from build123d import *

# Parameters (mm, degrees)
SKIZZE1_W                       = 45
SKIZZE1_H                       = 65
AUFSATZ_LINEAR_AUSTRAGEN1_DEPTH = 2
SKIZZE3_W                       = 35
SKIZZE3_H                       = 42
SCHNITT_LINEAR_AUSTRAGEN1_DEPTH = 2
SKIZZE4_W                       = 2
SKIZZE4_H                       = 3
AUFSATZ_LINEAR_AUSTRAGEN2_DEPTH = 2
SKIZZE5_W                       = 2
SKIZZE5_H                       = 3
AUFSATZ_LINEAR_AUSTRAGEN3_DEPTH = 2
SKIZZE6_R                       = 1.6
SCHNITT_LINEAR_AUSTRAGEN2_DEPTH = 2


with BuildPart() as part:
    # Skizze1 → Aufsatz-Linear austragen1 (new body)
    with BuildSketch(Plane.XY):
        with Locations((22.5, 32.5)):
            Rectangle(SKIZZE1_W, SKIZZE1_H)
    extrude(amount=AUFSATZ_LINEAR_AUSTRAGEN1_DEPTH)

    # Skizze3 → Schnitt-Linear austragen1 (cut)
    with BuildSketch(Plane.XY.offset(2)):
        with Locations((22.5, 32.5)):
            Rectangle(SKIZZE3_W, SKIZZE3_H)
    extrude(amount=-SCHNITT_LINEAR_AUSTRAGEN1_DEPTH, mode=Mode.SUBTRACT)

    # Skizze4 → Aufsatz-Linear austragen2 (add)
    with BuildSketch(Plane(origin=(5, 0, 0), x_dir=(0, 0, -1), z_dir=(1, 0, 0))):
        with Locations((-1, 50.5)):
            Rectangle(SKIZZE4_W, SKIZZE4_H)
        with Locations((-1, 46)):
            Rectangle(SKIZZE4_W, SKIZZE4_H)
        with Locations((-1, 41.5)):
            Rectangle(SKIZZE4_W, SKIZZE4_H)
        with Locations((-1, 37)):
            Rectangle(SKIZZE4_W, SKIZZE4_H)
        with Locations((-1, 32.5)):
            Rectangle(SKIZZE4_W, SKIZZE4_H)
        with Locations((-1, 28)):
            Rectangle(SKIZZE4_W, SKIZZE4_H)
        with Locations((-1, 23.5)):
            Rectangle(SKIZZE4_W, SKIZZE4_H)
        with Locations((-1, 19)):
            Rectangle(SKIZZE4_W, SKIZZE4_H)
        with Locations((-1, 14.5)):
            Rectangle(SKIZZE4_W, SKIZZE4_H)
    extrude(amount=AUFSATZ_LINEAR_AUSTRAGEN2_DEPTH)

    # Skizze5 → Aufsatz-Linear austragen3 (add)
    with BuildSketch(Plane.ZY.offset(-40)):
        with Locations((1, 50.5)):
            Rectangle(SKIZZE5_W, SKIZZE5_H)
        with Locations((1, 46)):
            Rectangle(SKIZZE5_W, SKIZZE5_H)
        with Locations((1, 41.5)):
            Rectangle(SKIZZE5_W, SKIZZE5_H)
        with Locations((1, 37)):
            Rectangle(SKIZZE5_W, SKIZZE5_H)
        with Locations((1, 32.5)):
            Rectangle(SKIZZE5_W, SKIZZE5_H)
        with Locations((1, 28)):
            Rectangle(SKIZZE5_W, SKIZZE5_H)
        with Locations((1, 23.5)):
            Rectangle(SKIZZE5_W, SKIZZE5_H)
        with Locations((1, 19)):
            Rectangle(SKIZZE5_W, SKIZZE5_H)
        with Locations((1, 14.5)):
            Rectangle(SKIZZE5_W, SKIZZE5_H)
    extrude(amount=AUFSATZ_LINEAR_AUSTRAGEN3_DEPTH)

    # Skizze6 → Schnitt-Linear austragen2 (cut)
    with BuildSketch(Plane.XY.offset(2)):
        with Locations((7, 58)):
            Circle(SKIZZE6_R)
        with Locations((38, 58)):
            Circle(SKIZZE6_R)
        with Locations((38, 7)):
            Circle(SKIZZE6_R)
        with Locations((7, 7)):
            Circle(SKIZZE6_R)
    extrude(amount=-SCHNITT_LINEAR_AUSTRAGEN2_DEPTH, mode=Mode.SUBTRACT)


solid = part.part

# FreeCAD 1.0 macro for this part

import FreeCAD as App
import Part
import Sketcher

doc = App.newDocument("Part")
params = doc.addObject("Spreadsheet::Sheet", "Params")
for row, (alias, value) in enumerate([
    ("sketch1_width", "45 mm"),
    ("sketch1_height", "65 mm"),
    ("pad1_length", "2 mm"),
    ("sketch2_width", "35 mm"),
    ("sketch2_height", "42 mm"),
    ("pocket1_length", "2 mm"),
    ("sketch3_width", "3 mm"),
    ("sketch3_height", "2 mm"),
    ("pad2_length", "2 mm"),
    ("sketch4_width", "3 mm"),
    ("sketch4_height", "2 mm"),
    ("pad3_length", "2 mm"),
    ("sketch5_diameter", "3.2 mm"),
    ("pocket2_length", "2 mm"),
], start=1):
    params.set(f"A{row}", alias)
    params.set(f"B{row}", "=" + value)
    params.setAlias(f"B{row}", alias)

body = doc.addObject("PartDesign::Body", "Body")

# Sketch on XY plane
sketch1 = body.newObject("Sketcher::SketchObject", "Sketch")
sketch1.AttachmentSupport = (doc.getObject("XY_Plane"), [""])
sketch1.MapMode = "FlatFace"
sketch1.addGeometry([
    Part.LineSegment(App.Vector(0, 65, 0), App.Vector(0, 0, 0)),
    Part.LineSegment(App.Vector(0, 0, 0), App.Vector(45, 0, 0)),
    Part.LineSegment(App.Vector(45, 0, 0), App.Vector(45, 65, 0)),
    Part.LineSegment(App.Vector(45, 65, 0), App.Vector(0, 65, 0)),
], False)
sketch1.addConstraint([
    Sketcher.Constraint("Coincident", 0, 2, 1, 1),
    Sketcher.Constraint("Coincident", 1, 2, 2, 1),
    Sketcher.Constraint("Coincident", 2, 2, 3, 1),
    Sketcher.Constraint("Coincident", 3, 2, 0, 1),
    Sketcher.Constraint("Vertical", 0),
    Sketcher.Constraint("Horizontal", 1),
    Sketcher.Constraint("Vertical", 2),
    Sketcher.Constraint("Horizontal", 3),
    Sketcher.Constraint("Coincident", 0, 2, -1, 1),
    Sketcher.Constraint("DistanceX", 1, 1, 1, 2, 45.0),
    Sketcher.Constraint("DistanceY", 0, 2, 0, 1, 65.0),
])
sketch1.setExpression("Constraints[9]", "Params.sketch1_width")
sketch1.setExpression("Constraints[10]", "Params.sketch1_height")
pad1 = body.newObject("PartDesign::Pad", "Pad")
pad1.Profile = sketch1
pad1.setExpression("Length", "Params.pad1_length")

# Sketch on XY plane
sketch2 = body.newObject("Sketcher::SketchObject", "Sketch001")
sketch2.AttachmentSupport = (doc.getObject("XY_Plane"), [""])
sketch2.MapMode = "FlatFace"
sketch2.AttachmentOffset = App.Placement(App.Vector(0, 0, 2), App.Rotation())
sketch2.addGeometry([
    Part.LineSegment(App.Vector(5, 54, 0), App.Vector(5, 12, 0)),
    Part.LineSegment(App.Vector(5, 12, 0), App.Vector(40, 12, 0)),
    Part.LineSegment(App.Vector(40, 12, 0), App.Vector(40, 54, 0)),
    Part.LineSegment(App.Vector(40, 54, 0), App.Vector(5, 54, 0)),
], False)
sketch2.addConstraint([
    Sketcher.Constraint("Coincident", 0, 2, 1, 1),
    Sketcher.Constraint("Coincident", 1, 2, 2, 1),
    Sketcher.Constraint("Coincident", 2, 2, 3, 1),
    Sketcher.Constraint("Coincident", 3, 2, 0, 1),
    Sketcher.Constraint("Vertical", 0),
    Sketcher.Constraint("Horizontal", 1),
    Sketcher.Constraint("Vertical", 2),
    Sketcher.Constraint("Horizontal", 3),
    Sketcher.Constraint("DistanceX", 1, 1, 1, 2, 35.0),
    Sketcher.Constraint("DistanceY", 0, 2, 0, 1, 42.0),
    Sketcher.Constraint("DistanceX", -1, 1, 0, 2, 5.0),
    Sketcher.Constraint("DistanceY", -1, 1, 0, 2, 11.5),
])
sketch2.setExpression("Constraints[8]", "Params.sketch2_width")
sketch2.setExpression("Constraints[9]", "Params.sketch2_height")
pocket1 = body.newObject("PartDesign::Pocket", "Pocket")
pocket1.Profile = sketch2
pocket1.setExpression("Length", "Params.pocket1_length")

# Sketch on YZ plane
sketch3 = body.newObject("Sketcher::SketchObject", "Sketch002")
sketch3.AttachmentSupport = (doc.getObject("YZ_Plane"), [""])
sketch3.MapMode = "FlatFace"
sketch3.AttachmentOffset = App.Placement(App.Vector(0, 0, 5), App.Rotation())
sketch3.addGeometry([
    Part.LineSegment(App.Vector(52, 2, 0), App.Vector(49, 2, 0)),  # 0
    Part.LineSegment(App.Vector(49, 2, 0), App.Vector(49, 0, 0)),  # 1
    Part.LineSegment(App.Vector(49, 0, 0), App.Vector(52, 0, 0)),  # 2
    Part.LineSegment(App.Vector(52, 0, 0), App.Vector(52, 2, 0)),  # 3
    Part.LineSegment(App.Vector(47.5, 2, 0), App.Vector(44.5, 2, 0)),  # 4
    Part.LineSegment(App.Vector(44.5, 2, 0), App.Vector(44.5, 0, 0)),  # 5
    Part.LineSegment(App.Vector(44.5, 0, 0), App.Vector(47.5, 0, 0)),  # 6
    Part.LineSegment(App.Vector(47.5, 0, 0), App.Vector(47.5, 2, 0)),  # 7
    Part.LineSegment(App.Vector(43, 2, 0), App.Vector(40, 2, 0)),  # 8
    Part.LineSegment(App.Vector(40, 2, 0), App.Vector(40, 0, 0)),  # 9
    Part.LineSegment(App.Vector(40, 0, 0), App.Vector(43, 0, 0)),  # 10
    Part.LineSegment(App.Vector(43, 0, 0), App.Vector(43, 2, 0)),  # 11
    Part.LineSegment(App.Vector(38.5, 2, 0), App.Vector(35.5, 2, 0)),  # 12
    Part.LineSegment(App.Vector(35.5, 2, 0), App.Vector(35.5, 0, 0)),  # 13
    Part.LineSegment(App.Vector(35.5, 0, 0), App.Vector(38.5, 0, 0)),  # 14
    Part.LineSegment(App.Vector(38.5, 0, 0), App.Vector(38.5, 2, 0)),  # 15
    Part.LineSegment(App.Vector(34, 2, 0), App.Vector(31, 2, 0)),  # 16
    Part.LineSegment(App.Vector(31, 2, 0), App.Vector(31, 0, 0)),  # 17
    Part.LineSegment(App.Vector(31, 0, 0), App.Vector(34, 0, 0)),  # 18
    Part.LineSegment(App.Vector(34, 0, 0), App.Vector(34, 2, 0)),  # 19
    Part.LineSegment(App.Vector(29.5, 2, 0), App.Vector(26.5, 2, 0)),  # 20
    Part.LineSegment(App.Vector(26.5, 2, 0), App.Vector(26.5, 0, 0)),  # 21
    Part.LineSegment(App.Vector(26.5, 0, 0), App.Vector(29.5, 0, 0)),  # 22
    Part.LineSegment(App.Vector(29.5, 0, 0), App.Vector(29.5, 2, 0)),  # 23
    Part.LineSegment(App.Vector(25, 2, 0), App.Vector(22, 2, 0)),  # 24
    Part.LineSegment(App.Vector(22, 2, 0), App.Vector(22, 0, 0)),  # 25
    Part.LineSegment(App.Vector(22, 0, 0), App.Vector(25, 0, 0)),  # 26
    Part.LineSegment(App.Vector(25, 0, 0), App.Vector(25, 2, 0)),  # 27
    Part.LineSegment(App.Vector(20.5, 2, 0), App.Vector(17.5, 2, 0)),  # 28
    Part.LineSegment(App.Vector(17.5, 2, 0), App.Vector(17.5, 0, 0)),  # 29
    Part.LineSegment(App.Vector(17.5, 0, 0), App.Vector(20.5, 0, 0)),  # 30
    Part.LineSegment(App.Vector(20.5, 0, 0), App.Vector(20.5, 2, 0)),  # 31
    Part.LineSegment(App.Vector(16, 2, 0), App.Vector(13, 2, 0)),  # 32
    Part.LineSegment(App.Vector(13, 2, 0), App.Vector(13, 0, 0)),  # 33
    Part.LineSegment(App.Vector(13, 0, 0), App.Vector(16, 0, 0)),  # 34
    Part.LineSegment(App.Vector(16, 0, 0), App.Vector(16, 2, 0)),  # 35
], False)
sketch3.addConstraint([
    Sketcher.Constraint("Coincident", 0, 2, 1, 1),
    Sketcher.Constraint("Coincident", 1, 2, 2, 1),
    Sketcher.Constraint("Coincident", 2, 2, 3, 1),
    Sketcher.Constraint("Coincident", 3, 2, 0, 1),
    Sketcher.Constraint("Coincident", 4, 2, 5, 1),
    Sketcher.Constraint("Coincident", 5, 2, 6, 1),
    Sketcher.Constraint("Coincident", 6, 2, 7, 1),
    Sketcher.Constraint("Coincident", 7, 2, 4, 1),
    Sketcher.Constraint("Coincident", 8, 2, 9, 1),
    Sketcher.Constraint("Coincident", 9, 2, 10, 1),
    Sketcher.Constraint("Coincident", 10, 2, 11, 1),
    Sketcher.Constraint("Coincident", 11, 2, 8, 1),
    Sketcher.Constraint("Coincident", 12, 2, 13, 1),
    Sketcher.Constraint("Coincident", 13, 2, 14, 1),
    Sketcher.Constraint("Coincident", 14, 2, 15, 1),
    Sketcher.Constraint("Coincident", 15, 2, 12, 1),
    Sketcher.Constraint("Coincident", 16, 2, 17, 1),
    Sketcher.Constraint("Coincident", 17, 2, 18, 1),
    Sketcher.Constraint("Coincident", 18, 2, 19, 1),
    Sketcher.Constraint("Coincident", 19, 2, 16, 1),
    Sketcher.Constraint("Coincident", 20, 2, 21, 1),
    Sketcher.Constraint("Coincident", 21, 2, 22, 1),
    Sketcher.Constraint("Coincident", 22, 2, 23, 1),
    Sketcher.Constraint("Coincident", 23, 2, 20, 1),
    Sketcher.Constraint("Coincident", 24, 2, 25, 1),
    Sketcher.Constraint("Coincident", 25, 2, 26, 1),
    Sketcher.Constraint("Coincident", 26, 2, 27, 1),
    Sketcher.Constraint("Coincident", 27, 2, 24, 1),
    Sketcher.Constraint("Coincident", 28, 2, 29, 1),
    Sketcher.Constraint("Coincident", 29, 2, 30, 1),
    Sketcher.Constraint("Coincident", 30, 2, 31, 1),
    Sketcher.Constraint("Coincident", 31, 2, 28, 1),
    Sketcher.Constraint("Coincident", 32, 2, 33, 1),
    Sketcher.Constraint("Coincident", 33, 2, 34, 1),
    Sketcher.Constraint("Coincident", 34, 2, 35, 1),
    Sketcher.Constraint("Coincident", 35, 2, 32, 1),
    Sketcher.Constraint("Horizontal", 0),
    Sketcher.Constraint("Vertical", 1),
    Sketcher.Constraint("Horizontal", 2),
    Sketcher.Constraint("Vertical", 3),
    Sketcher.Constraint("Horizontal", 4),
    Sketcher.Constraint("Vertical", 5),
    Sketcher.Constraint("Horizontal", 6),
    Sketcher.Constraint("Vertical", 7),
    Sketcher.Constraint("Horizontal", 8),
    Sketcher.Constraint("Vertical", 9),
    Sketcher.Constraint("Horizontal", 10),
    Sketcher.Constraint("Vertical", 11),
    Sketcher.Constraint("Horizontal", 12),
    Sketcher.Constraint("Vertical", 13),
    Sketcher.Constraint("Horizontal", 14),
    Sketcher.Constraint("Vertical", 15),
    Sketcher.Constraint("Horizontal", 16),
    Sketcher.Constraint("Vertical", 17),
    Sketcher.Constraint("Horizontal", 18),
    Sketcher.Constraint("Vertical", 19),
    Sketcher.Constraint("Horizontal", 20),
    Sketcher.Constraint("Vertical", 21),
    Sketcher.Constraint("Horizontal", 22),
    Sketcher.Constraint("Vertical", 23),
    Sketcher.Constraint("Horizontal", 24),
    Sketcher.Constraint("Vertical", 25),
    Sketcher.Constraint("Horizontal", 26),
    Sketcher.Constraint("Vertical", 27),
    Sketcher.Constraint("Horizontal", 28),
    Sketcher.Constraint("Vertical", 29),
    Sketcher.Constraint("Horizontal", 30),
    Sketcher.Constraint("Vertical", 31),
    Sketcher.Constraint("Horizontal", 32),
    Sketcher.Constraint("Vertical", 33),
    Sketcher.Constraint("Horizontal", 34),
    Sketcher.Constraint("Vertical", 35),
    Sketcher.Constraint("PointOnObject", 1, 2, -1),
    Sketcher.Constraint("PointOnObject", 5, 2, -1),
    Sketcher.Constraint("PointOnObject", 9, 2, -1),
    Sketcher.Constraint("PointOnObject", 13, 2, -1),
    Sketcher.Constraint("PointOnObject", 17, 2, -1),
    Sketcher.Constraint("PointOnObject", 21, 2, -1),
    Sketcher.Constraint("PointOnObject", 25, 2, -1),
    Sketcher.Constraint("PointOnObject", 29, 2, -1),
    Sketcher.Constraint("PointOnObject", 33, 2, -1),
    Sketcher.Constraint("Horizontal", 3, 2, 4, 2),
    Sketcher.Constraint("Horizontal", 7, 2, 8, 2),
    Sketcher.Constraint("Horizontal", 11, 2, 12, 2),
    Sketcher.Constraint("Horizontal", 15, 2, 16, 2),
    Sketcher.Constraint("Horizontal", 19, 2, 20, 2),
    Sketcher.Constraint("Horizontal", 23, 2, 24, 2),
    Sketcher.Constraint("Horizontal", 27, 2, 28, 2),
    Sketcher.Constraint("Horizontal", 31, 2, 32, 2),
    Sketcher.Constraint("Equal", 2, 4),
    Sketcher.Constraint("Equal", 6, 8),
    Sketcher.Constraint("Equal", 10, 12),
    Sketcher.Constraint("Equal", 14, 16),
    Sketcher.Constraint("Equal", 18, 20),
    Sketcher.Constraint("Equal", 22, 24),
    Sketcher.Constraint("Equal", 26, 28),
    Sketcher.Constraint("Equal", 30, 32),
    Sketcher.Constraint("DistanceX", 0, 2, 0, 1, 3.0),
    Sketcher.Constraint("DistanceY", 1, 2, 1, 1, 2.0),
    Sketcher.Constraint("DistanceX", -1, 1, 0, 2, 49.0),
    Sketcher.Constraint("DistanceX", -1, 1, 8, 2, 40.0),
    Sketcher.Constraint("DistanceX", -1, 1, 16, 2, 31.0),
    Sketcher.Constraint("DistanceX", -1, 1, 24, 2, 22.0),
    Sketcher.Constraint("DistanceX", -1, 1, 32, 2, 13.0),
    Sketcher.Constraint("DistanceX", 12, 2, 4, 2, 9.0),
    Sketcher.Constraint("DistanceX", 20, 2, 12, 2, 9.0),
    Sketcher.Constraint("DistanceX", 28, 2, 20, 2, 9.0),
    Sketcher.Constraint("DistanceX", -1, 1, 4, 2, 44.5),
])
sketch3.setExpression("Constraints[97]", "Params.sketch3_width")
sketch3.setExpression("Constraints[98]", "Params.sketch3_height")
pad2 = body.newObject("PartDesign::Pad", "Pad001")
pad2.Profile = sketch3
pad2.setExpression("Length", "Params.pad2_length")

# Sketch on YZ plane
sketch4 = body.newObject("Sketcher::SketchObject", "Sketch003")
sketch4.AttachmentSupport = (doc.getObject("YZ_Plane"), [""])
sketch4.MapMode = "FlatFace"
sketch4.AttachmentOffset = App.Placement(App.Vector(0, 0, 40), App.Rotation())
sketch4.addGeometry([
    Part.LineSegment(App.Vector(52, 0, 0), App.Vector(49, 0, 0)),  # 0
    Part.LineSegment(App.Vector(49, 0, 0), App.Vector(49, 2, 0)),  # 1
    Part.LineSegment(App.Vector(49, 2, 0), App.Vector(52, 2, 0)),  # 2
    Part.LineSegment(App.Vector(52, 2, 0), App.Vector(52, 0, 0)),  # 3
    Part.LineSegment(App.Vector(47.5, 0, 0), App.Vector(44.5, 0, 0)),  # 4
    Part.LineSegment(App.Vector(44.5, 0, 0), App.Vector(44.5, 2, 0)),  # 5
    Part.LineSegment(App.Vector(44.5, 2, 0), App.Vector(47.5, 2, 0)),  # 6
    Part.LineSegment(App.Vector(47.5, 2, 0), App.Vector(47.5, 0, 0)),  # 7
    Part.LineSegment(App.Vector(43, 0, 0), App.Vector(40, 0, 0)),  # 8
    Part.LineSegment(App.Vector(40, 0, 0), App.Vector(40, 2, 0)),  # 9
    Part.LineSegment(App.Vector(40, 2, 0), App.Vector(43, 2, 0)),  # 10
    Part.LineSegment(App.Vector(43, 2, 0), App.Vector(43, 0, 0)),  # 11
    Part.LineSegment(App.Vector(38.5, 0, 0), App.Vector(35.5, 0, 0)),  # 12
    Part.LineSegment(App.Vector(35.5, 0, 0), App.Vector(35.5, 2, 0)),  # 13
    Part.LineSegment(App.Vector(35.5, 2, 0), App.Vector(38.5, 2, 0)),  # 14
    Part.LineSegment(App.Vector(38.5, 2, 0), App.Vector(38.5, 0, 0)),  # 15
    Part.LineSegment(App.Vector(34, 0, 0), App.Vector(31, 0, 0)),  # 16
    Part.LineSegment(App.Vector(31, 0, 0), App.Vector(31, 2, 0)),  # 17
    Part.LineSegment(App.Vector(31, 2, 0), App.Vector(34, 2, 0)),  # 18
    Part.LineSegment(App.Vector(34, 2, 0), App.Vector(34, 0, 0)),  # 19
    Part.LineSegment(App.Vector(29.5, 0, 0), App.Vector(26.5, 0, 0)),  # 20
    Part.LineSegment(App.Vector(26.5, 0, 0), App.Vector(26.5, 2, 0)),  # 21
    Part.LineSegment(App.Vector(26.5, 2, 0), App.Vector(29.5, 2, 0)),  # 22
    Part.LineSegment(App.Vector(29.5, 2, 0), App.Vector(29.5, 0, 0)),  # 23
    Part.LineSegment(App.Vector(25, 0, 0), App.Vector(22, 0, 0)),  # 24
    Part.LineSegment(App.Vector(22, 0, 0), App.Vector(22, 2, 0)),  # 25
    Part.LineSegment(App.Vector(22, 2, 0), App.Vector(25, 2, 0)),  # 26
    Part.LineSegment(App.Vector(25, 2, 0), App.Vector(25, 0, 0)),  # 27
    Part.LineSegment(App.Vector(20.5, 0, 0), App.Vector(17.5, 0, 0)),  # 28
    Part.LineSegment(App.Vector(17.5, 0, 0), App.Vector(17.5, 2, 0)),  # 29
    Part.LineSegment(App.Vector(17.5, 2, 0), App.Vector(20.5, 2, 0)),  # 30
    Part.LineSegment(App.Vector(20.5, 2, 0), App.Vector(20.5, 0, 0)),  # 31
    Part.LineSegment(App.Vector(16, 0, 0), App.Vector(13, 0, 0)),  # 32
    Part.LineSegment(App.Vector(13, 0, 0), App.Vector(13, 2, 0)),  # 33
    Part.LineSegment(App.Vector(13, 2, 0), App.Vector(16, 2, 0)),  # 34
    Part.LineSegment(App.Vector(16, 2, 0), App.Vector(16, 0, 0)),  # 35
], False)
sketch4.addConstraint([
    Sketcher.Constraint("Coincident", 0, 2, 1, 1),
    Sketcher.Constraint("Coincident", 1, 2, 2, 1),
    Sketcher.Constraint("Coincident", 2, 2, 3, 1),
    Sketcher.Constraint("Coincident", 3, 2, 0, 1),
    Sketcher.Constraint("Coincident", 4, 2, 5, 1),
    Sketcher.Constraint("Coincident", 5, 2, 6, 1),
    Sketcher.Constraint("Coincident", 6, 2, 7, 1),
    Sketcher.Constraint("Coincident", 7, 2, 4, 1),
    Sketcher.Constraint("Coincident", 8, 2, 9, 1),
    Sketcher.Constraint("Coincident", 9, 2, 10, 1),
    Sketcher.Constraint("Coincident", 10, 2, 11, 1),
    Sketcher.Constraint("Coincident", 11, 2, 8, 1),
    Sketcher.Constraint("Coincident", 12, 2, 13, 1),
    Sketcher.Constraint("Coincident", 13, 2, 14, 1),
    Sketcher.Constraint("Coincident", 14, 2, 15, 1),
    Sketcher.Constraint("Coincident", 15, 2, 12, 1),
    Sketcher.Constraint("Coincident", 16, 2, 17, 1),
    Sketcher.Constraint("Coincident", 17, 2, 18, 1),
    Sketcher.Constraint("Coincident", 18, 2, 19, 1),
    Sketcher.Constraint("Coincident", 19, 2, 16, 1),
    Sketcher.Constraint("Coincident", 20, 2, 21, 1),
    Sketcher.Constraint("Coincident", 21, 2, 22, 1),
    Sketcher.Constraint("Coincident", 22, 2, 23, 1),
    Sketcher.Constraint("Coincident", 23, 2, 20, 1),
    Sketcher.Constraint("Coincident", 24, 2, 25, 1),
    Sketcher.Constraint("Coincident", 25, 2, 26, 1),
    Sketcher.Constraint("Coincident", 26, 2, 27, 1),
    Sketcher.Constraint("Coincident", 27, 2, 24, 1),
    Sketcher.Constraint("Coincident", 28, 2, 29, 1),
    Sketcher.Constraint("Coincident", 29, 2, 30, 1),
    Sketcher.Constraint("Coincident", 30, 2, 31, 1),
    Sketcher.Constraint("Coincident", 31, 2, 28, 1),
    Sketcher.Constraint("Coincident", 32, 2, 33, 1),
    Sketcher.Constraint("Coincident", 33, 2, 34, 1),
    Sketcher.Constraint("Coincident", 34, 2, 35, 1),
    Sketcher.Constraint("Coincident", 35, 2, 32, 1),
    Sketcher.Constraint("Horizontal", 0),
    Sketcher.Constraint("Vertical", 1),
    Sketcher.Constraint("Horizontal", 2),
    Sketcher.Constraint("Vertical", 3),
    Sketcher.Constraint("Horizontal", 4),
    Sketcher.Constraint("Vertical", 5),
    Sketcher.Constraint("Horizontal", 6),
    Sketcher.Constraint("Vertical", 7),
    Sketcher.Constraint("Horizontal", 8),
    Sketcher.Constraint("Vertical", 9),
    Sketcher.Constraint("Horizontal", 10),
    Sketcher.Constraint("Vertical", 11),
    Sketcher.Constraint("Horizontal", 12),
    Sketcher.Constraint("Vertical", 13),
    Sketcher.Constraint("Horizontal", 14),
    Sketcher.Constraint("Vertical", 15),
    Sketcher.Constraint("Horizontal", 16),
    Sketcher.Constraint("Vertical", 17),
    Sketcher.Constraint("Horizontal", 18),
    Sketcher.Constraint("Vertical", 19),
    Sketcher.Constraint("Horizontal", 20),
    Sketcher.Constraint("Vertical", 21),
    Sketcher.Constraint("Horizontal", 22),
    Sketcher.Constraint("Vertical", 23),
    Sketcher.Constraint("Horizontal", 24),
    Sketcher.Constraint("Vertical", 25),
    Sketcher.Constraint("Horizontal", 26),
    Sketcher.Constraint("Vertical", 27),
    Sketcher.Constraint("Horizontal", 28),
    Sketcher.Constraint("Vertical", 29),
    Sketcher.Constraint("Horizontal", 30),
    Sketcher.Constraint("Vertical", 31),
    Sketcher.Constraint("Horizontal", 32),
    Sketcher.Constraint("Vertical", 33),
    Sketcher.Constraint("Horizontal", 34),
    Sketcher.Constraint("Vertical", 35),
    Sketcher.Constraint("PointOnObject", 0, 2, -1),
    Sketcher.Constraint("PointOnObject", 4, 2, -1),
    Sketcher.Constraint("PointOnObject", 8, 2, -1),
    Sketcher.Constraint("PointOnObject", 12, 2, -1),
    Sketcher.Constraint("PointOnObject", 16, 2, -1),
    Sketcher.Constraint("PointOnObject", 20, 2, -1),
    Sketcher.Constraint("PointOnObject", 24, 2, -1),
    Sketcher.Constraint("PointOnObject", 28, 2, -1),
    Sketcher.Constraint("PointOnObject", 32, 2, -1),
    Sketcher.Constraint("Horizontal", 2, 2, 5, 2),
    Sketcher.Constraint("Horizontal", 6, 2, 9, 2),
    Sketcher.Constraint("Horizontal", 10, 2, 13, 2),
    Sketcher.Constraint("Horizontal", 14, 2, 17, 2),
    Sketcher.Constraint("Horizontal", 18, 2, 21, 2),
    Sketcher.Constraint("Horizontal", 22, 2, 25, 2),
    Sketcher.Constraint("Horizontal", 26, 2, 29, 2),
    Sketcher.Constraint("Horizontal", 30, 2, 33, 2),
    Sketcher.Constraint("Equal", 2, 4),
    Sketcher.Constraint("Equal", 6, 8),
    Sketcher.Constraint("Equal", 10, 12),
    Sketcher.Constraint("Equal", 14, 16),
    Sketcher.Constraint("Equal", 18, 20),
    Sketcher.Constraint("Equal", 22, 24),
    Sketcher.Constraint("Equal", 26, 28),
    Sketcher.Constraint("Equal", 30, 32),
    Sketcher.Constraint("DistanceX", 0, 2, 0, 1, 3.0),
    Sketcher.Constraint("DistanceY", 1, 1, 1, 2, 2.0),
    Sketcher.Constraint("DistanceX", -1, 1, 0, 2, 49.0),
    Sketcher.Constraint("DistanceX", -1, 1, 8, 2, 40.0),
    Sketcher.Constraint("DistanceX", -1, 1, 16, 2, 31.0),
    Sketcher.Constraint("DistanceX", -1, 1, 24, 2, 22.0),
    Sketcher.Constraint("DistanceX", -1, 1, 32, 2, 13.0),
    Sketcher.Constraint("DistanceX", 12, 2, 4, 2, 9.0),
    Sketcher.Constraint("DistanceX", 20, 2, 12, 2, 9.0),
    Sketcher.Constraint("DistanceX", 28, 2, 20, 2, 9.0),
    Sketcher.Constraint("DistanceX", -1, 1, 4, 2, 44.5),
])
sketch4.setExpression("Constraints[97]", "Params.sketch4_width")
sketch4.setExpression("Constraints[98]", "Params.sketch4_height")
pad3 = body.newObject("PartDesign::Pad", "Pad002")
pad3.Profile = sketch4
pad3.setExpression("Length", "Params.pad3_length")
pad3.Reversed = True

# Sketch on XY plane
sketch5 = body.newObject("Sketcher::SketchObject", "Sketch004")
sketch5.AttachmentSupport = (doc.getObject("XY_Plane"), [""])
sketch5.MapMode = "FlatFace"
sketch5.AttachmentOffset = App.Placement(App.Vector(0, 0, 2), App.Rotation())
sketch5.addGeometry([
    Part.Circle(App.Vector(7, 58, 0), App.Vector(0, 0, 1), 1.6),
    Part.Circle(App.Vector(38, 58, 0), App.Vector(0, 0, 1), 1.6),
    Part.Circle(App.Vector(38, 7, 0), App.Vector(0, 0, 1), 1.6),
    Part.Circle(App.Vector(7, 7, 0), App.Vector(0, 0, 1), 1.6),
], False)
sketch5.addConstraint([
    Sketcher.Constraint("Equal", 0, 1),
    Sketcher.Constraint("Equal", 1, 2),
    Sketcher.Constraint("Equal", 2, 3),
    Sketcher.Constraint("Horizontal", 0, 3, 1, 3),
    Sketcher.Constraint("Horizontal", 2, 3, 3, 3),
    Sketcher.Constraint("Vertical", 1, 3, 2, 3),
    Sketcher.Constraint("Vertical", 0, 3, 3, 3),
    Sketcher.Constraint("Diameter", 0, 3.2),
    Sketcher.Constraint("DistanceX", -1, 1, 0, 3, 7.0),
    Sketcher.Constraint("DistanceY", -1, 1, 0, 3, 58.0),
    Sketcher.Constraint("DistanceX", -1, 1, 1, 3, 38.0),
    Sketcher.Constraint("DistanceY", -1, 1, 2, 3, 7.0),
])
sketch5.setExpression("Constraints[7]", "Params.sketch5_diameter")
pocket2 = body.newObject("PartDesign::Pocket", "Pocket001")
pocket2.Profile = sketch5
pocket2.setExpression("Length", "Params.pocket2_length")

doc.recompute()
